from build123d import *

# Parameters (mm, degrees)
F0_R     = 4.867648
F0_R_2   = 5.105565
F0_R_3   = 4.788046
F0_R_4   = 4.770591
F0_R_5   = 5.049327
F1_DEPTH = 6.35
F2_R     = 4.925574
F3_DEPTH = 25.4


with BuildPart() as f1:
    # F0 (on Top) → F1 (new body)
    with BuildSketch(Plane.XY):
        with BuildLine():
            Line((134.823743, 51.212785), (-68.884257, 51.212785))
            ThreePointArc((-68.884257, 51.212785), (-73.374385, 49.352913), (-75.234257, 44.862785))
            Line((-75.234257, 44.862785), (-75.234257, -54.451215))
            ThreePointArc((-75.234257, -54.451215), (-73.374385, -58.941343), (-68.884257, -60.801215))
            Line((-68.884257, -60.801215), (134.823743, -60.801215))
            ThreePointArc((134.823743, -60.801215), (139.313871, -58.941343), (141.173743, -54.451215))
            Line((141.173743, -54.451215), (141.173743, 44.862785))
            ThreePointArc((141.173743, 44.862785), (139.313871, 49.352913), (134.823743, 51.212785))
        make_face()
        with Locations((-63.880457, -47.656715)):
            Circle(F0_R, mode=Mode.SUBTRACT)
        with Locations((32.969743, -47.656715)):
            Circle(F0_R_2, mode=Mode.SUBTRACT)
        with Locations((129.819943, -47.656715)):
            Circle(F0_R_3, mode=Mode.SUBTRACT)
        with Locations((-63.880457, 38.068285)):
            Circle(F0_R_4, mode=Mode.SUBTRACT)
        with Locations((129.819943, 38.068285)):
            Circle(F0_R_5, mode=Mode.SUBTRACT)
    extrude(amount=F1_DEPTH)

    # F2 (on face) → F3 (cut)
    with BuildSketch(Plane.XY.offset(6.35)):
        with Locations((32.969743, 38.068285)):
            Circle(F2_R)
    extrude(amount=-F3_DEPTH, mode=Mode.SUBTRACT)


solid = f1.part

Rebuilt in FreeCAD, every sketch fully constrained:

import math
import FreeCAD as App
import Part
import Sketcher
from FreeCAD import Vector
Q = App.Units.Quantity

doc = App.newDocument("Part")
body = doc.addObject("PartDesign::Body", "Body")

# Sketch on XY plane
sketch1 = body.newObject("Sketcher::SketchObject", "Sketch")
sketch1.AttachmentSupport = (doc.getObject("XY_Plane"), [""])
sketch1.MapMode = "FlatFace"
sketch1.addGeometry([
    Part.LineSegment(Vector(134.8, 51.2, 0), Vector(-68.9, 51.2, 0)),  # 0
    Part.ArcOfCircle(Part.Circle(Vector(-68.9, 44.9, 0), Vector(0, 0, 1), 6.4), math.radians(90), math.radians(180)),  # 1
    Part.LineSegment(Vector(-75.2, 44.9, 0), Vector(-75.2, -54.5, 0)),  # 2
    Part.ArcOfCircle(Part.Circle(Vector(-68.9, -54.5, 0), Vector(0, 0, 1), 6.4), math.radians(-180), math.radians(-90)),  # 3
    Part.LineSegment(Vector(-68.9, -60.8, 0), Vector(134.8, -60.8, 0)),  # 4
    Part.ArcOfCircle(Part.Circle(Vector(134.8, -54.5, 0), Vector(0, 0, 1), 6.4), math.radians(-90), math.radians(0)),  # 5
    Part.LineSegment(Vector(141.2, -54.5, 0), Vector(141.2, 44.9, 0)),  # 6
    Part.ArcOfCircle(Part.Circle(Vector(134.8, 44.9, 0), Vector(0, 0, 1), 6.4), math.radians(0), math.radians(90)),  # 7
    Part.Circle(Vector(-63.9, -47.7, 0), Vector(0, 0, 1), 4.9),  # 8
    Part.Circle(Vector(33, -47.7, 0), Vector(0, 0, 1), 5.1),  # 9
    Part.Circle(Vector(129.8, -47.7, 0), Vector(0, 0, 1), 4.8),  # 10
    Part.Circle(Vector(-63.9, 38.1, 0), Vector(0, 0, 1), 4.8),  # 11
    Part.Circle(Vector(129.8, 38.1, 0), Vector(0, 0, 1), 5),  # 12
], False)
sketch1.addConstraint([
    Sketcher.Constraint("Tangent", 0, 2, 1, 1),
    Sketcher.Constraint("Tangent", 1, 2, 2, 1),
    Sketcher.Constraint("Tangent", 2, 2, 3, 1),
    Sketcher.Constraint("Tangent", 3, 2, 4, 1),
    Sketcher.Constraint("Tangent", 4, 2, 5, 1),
    Sketcher.Constraint("Tangent", 5, 2, 6, 1),
    Sketcher.Constraint("Tangent", 6, 2, 7, 1),
    Sketcher.Constraint("Tangent", 7, 2, 0, 1),
    Sketcher.Constraint("Horizontal", 0),
    Sketcher.Constraint("Vertical", 2),
    Sketcher.Constraint("Horizontal", 4),
    Sketcher.Constraint("Vertical", 6),
    Sketcher.Constraint("Equal", 1, 3),
    Sketcher.Constraint("Equal", 3, 5),
    Sketcher.Constraint("Equal", 5, 7),
    Sketcher.Constraint("Horizontal", 8, 3, 9, 3),
    Sketcher.Constraint("Horizontal", 9, 3, 10, 3),
    Sketcher.Constraint("Horizontal", 11, 3, 12, 3),
    Sketcher.Constraint("Vertical", 8, 3, 11, 3),
    Sketcher.Constraint("Vertical", 10, 3, 12, 3),
    Sketcher.Constraint("Radius", 1, Q("0.25 in")),
    Sketcher.Constraint("DistanceX", 0, 2, 0, 1, Q("8.02 in")),
    Sketcher.Constraint("DistanceY", 2, 2, 2, 1, Q("3.91 in")),
    Sketcher.Constraint("DistanceX", 3, 3, 9, 3, Q("4.01 in")),
    Sketcher.Constraint("Diameter", 9, Q("10.21113 mm")),
    Sketcher.Constraint("Diameter", 10, Q("9.576092 mm")),
    Sketcher.Constraint("Diameter", 11, Q("9.541182 mm")),
    Sketcher.Constraint("DistanceX", 3, 3, 8, 3, Q("0.197 in")),
    Sketcher.Constraint("DistanceX", 10, 3, 5, 3, Q("0.197 in")),
    Sketcher.Constraint("DistanceY", 8, 3, 11, 3, Q("3.375 in")),
    Sketcher.Constraint("Diameter", 8, Q("9.735296 mm")),
    Sketcher.Constraint("Diameter", 12, Q("10.098654 mm")),
    Sketcher.Constraint("DistanceY", 3, 3, 8, 3, Q("0.2675 in")),
    Sketcher.Constraint("DistanceX", 1, 3, -1, 1, Q("68.884257 mm")),
    Sketcher.Constraint("DistanceY", -1, 1, 1, 3, Q("44.862785 mm")),
])
pad1 = body.newObject("PartDesign::Pad", "Pad")
pad1.Profile = sketch1
pad1.Length = Q("0.25 in")

# Sketch on XY plane
sketch2 = body.newObject("Sketcher::SketchObject", "Sketch001")
sketch2.AttachmentSupport = (doc.getObject("XY_Plane"), [""])
sketch2.MapMode = "FlatFace"
sketch2.AttachmentOffset = App.Placement(Vector(0, 0, 0.25 * 25.4), App.Rotation())
sketch2.addGeometry(Part.Circle(Vector(33, 38.1, 0), Vector(0, 0, 1), 4.9), False)
sketch2.addConstraint([
    Sketcher.Constraint("Diameter", 0, Q("9.851148 mm")),
    Sketcher.Constraint("DistanceX", -1, 1, 0, 3, Q("32.969743 mm")),
    Sketcher.Constraint("DistanceY", -1, 1, 0, 3, Q("38.068285 mm")),
])
pocket1 = body.newObject("PartDesign::Pocket", "Pocket")
pocket1.Profile = sketch2
pocket1.Length = Q("1 in")

doc.recompute()
